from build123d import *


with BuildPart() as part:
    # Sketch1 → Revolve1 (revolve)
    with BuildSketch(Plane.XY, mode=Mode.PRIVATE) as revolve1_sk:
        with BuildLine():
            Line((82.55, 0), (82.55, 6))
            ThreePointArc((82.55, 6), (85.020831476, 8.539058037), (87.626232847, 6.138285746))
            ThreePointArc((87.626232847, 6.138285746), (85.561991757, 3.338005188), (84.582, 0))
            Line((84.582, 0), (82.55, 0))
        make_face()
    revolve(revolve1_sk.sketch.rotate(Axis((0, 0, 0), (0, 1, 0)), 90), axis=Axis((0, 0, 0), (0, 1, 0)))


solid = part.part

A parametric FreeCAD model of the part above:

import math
import FreeCAD as App
import Part
import Sketcher

V = App.Vector
Q = App.Units.Quantity

doc = App.newDocument("Part")
params = doc.addObject("Spreadsheet::Sheet", "Params")
for row, (alias, value) in enumerate([
    ("sketch1_radius", "10 mm"),
    ("sketch1_height", "6 mm"),
    ("sketch1_radius2", "2.54 mm"),
    ("revolution_angle", "360 deg"),
], start=1):
    params.set(f"A{row}", alias)
    params.set(f"B{row}", "=" + value)
    params.setAlias(f"B{row}", alias)

body = doc.addObject("PartDesign::Body", "Body")

sketch1 = body.newObject("Sketcher::SketchObject", "Sketch")
sketch1.AttachmentSupport = (doc.getObject("XY_Plane"), [""])
sketch1.MapMode = "FlatFace"
sketch1.addGeometry(Part.LineSegment(V(82.5, 6, 0), V(82.5, 0, 0)), False)
sketch1.addGeometry(Part.LineSegment(V(82.5, 0, 0), V(84.6, 0, 0)), False)
sketch1.addGeometry(Part.ArcOfCircle(Part.Circle(V(94.5, -1.1, 0), V(0, 0, 1), 10), math.radians(134), math.radians(174)), False)
sketch1.addGeometry(Part.ArcOfCircle(Part.Circle(V(85.1, 6, 0), V(0, 0, 1), 2.5), math.radians(3), math.radians(180)), False)
sketch1.addConstraint(Sketcher.Constraint("Coincident", 0, 2, 1, 1))
sketch1.addConstraint(Sketcher.Constraint("Coincident", 1, 2, 2, 2))
sketch1.addConstraint(Sketcher.Constraint("Coincident", 2, 1, 3, 1))
sketch1.addConstraint(Sketcher.Constraint("Tangent", 3, 2, 0, 1))
sketch1.addConstraint(Sketcher.Constraint("Vertical", 0))
sketch1.addConstraint(Sketcher.Constraint("Horizontal", 1))
sketch1.addConstraint(Sketcher.Constraint("PointOnObject", 0, 2, -1))
sketch1.addConstraint(Sketcher.Constraint("Radius", 2, Q("10 mm")))
sketch1.addConstraint(Sketcher.Constraint("DistanceY", 0, 2, 0, 1, Q("6 mm")))
sketch1.addConstraint(Sketcher.Constraint("Radius", 3, Q("2.54 mm")))
sketch1.addConstraint(Sketcher.Constraint("DistanceX", 1, 1, 1, 2, Q("2.032 mm")))
sketch1.addConstraint(Sketcher.Constraint("DistanceX", -1, 1, 3, 3, Q("85.09 mm")))
sketch1.addConstraint(Sketcher.Constraint("DistanceX", -1, 1, 2, 3, Q("94.520759 mm")))
sketch1.setExpression("Constraints[7]", "Params.sketch1_radius")
sketch1.setExpression("Constraints[8]", "Params.sketch1_height")
sketch1.setExpression("Constraints[9]", "Params.sketch1_radius2")
revolution = body.newObject("PartDesign::Revolution", "Revolution")
revolution.Profile = sketch1
revolution.ReferenceAxis = (sketch1, ["V_Axis"])
revolution.setExpression("Angle", "Params.revolution_angle")

doc.recompute()
